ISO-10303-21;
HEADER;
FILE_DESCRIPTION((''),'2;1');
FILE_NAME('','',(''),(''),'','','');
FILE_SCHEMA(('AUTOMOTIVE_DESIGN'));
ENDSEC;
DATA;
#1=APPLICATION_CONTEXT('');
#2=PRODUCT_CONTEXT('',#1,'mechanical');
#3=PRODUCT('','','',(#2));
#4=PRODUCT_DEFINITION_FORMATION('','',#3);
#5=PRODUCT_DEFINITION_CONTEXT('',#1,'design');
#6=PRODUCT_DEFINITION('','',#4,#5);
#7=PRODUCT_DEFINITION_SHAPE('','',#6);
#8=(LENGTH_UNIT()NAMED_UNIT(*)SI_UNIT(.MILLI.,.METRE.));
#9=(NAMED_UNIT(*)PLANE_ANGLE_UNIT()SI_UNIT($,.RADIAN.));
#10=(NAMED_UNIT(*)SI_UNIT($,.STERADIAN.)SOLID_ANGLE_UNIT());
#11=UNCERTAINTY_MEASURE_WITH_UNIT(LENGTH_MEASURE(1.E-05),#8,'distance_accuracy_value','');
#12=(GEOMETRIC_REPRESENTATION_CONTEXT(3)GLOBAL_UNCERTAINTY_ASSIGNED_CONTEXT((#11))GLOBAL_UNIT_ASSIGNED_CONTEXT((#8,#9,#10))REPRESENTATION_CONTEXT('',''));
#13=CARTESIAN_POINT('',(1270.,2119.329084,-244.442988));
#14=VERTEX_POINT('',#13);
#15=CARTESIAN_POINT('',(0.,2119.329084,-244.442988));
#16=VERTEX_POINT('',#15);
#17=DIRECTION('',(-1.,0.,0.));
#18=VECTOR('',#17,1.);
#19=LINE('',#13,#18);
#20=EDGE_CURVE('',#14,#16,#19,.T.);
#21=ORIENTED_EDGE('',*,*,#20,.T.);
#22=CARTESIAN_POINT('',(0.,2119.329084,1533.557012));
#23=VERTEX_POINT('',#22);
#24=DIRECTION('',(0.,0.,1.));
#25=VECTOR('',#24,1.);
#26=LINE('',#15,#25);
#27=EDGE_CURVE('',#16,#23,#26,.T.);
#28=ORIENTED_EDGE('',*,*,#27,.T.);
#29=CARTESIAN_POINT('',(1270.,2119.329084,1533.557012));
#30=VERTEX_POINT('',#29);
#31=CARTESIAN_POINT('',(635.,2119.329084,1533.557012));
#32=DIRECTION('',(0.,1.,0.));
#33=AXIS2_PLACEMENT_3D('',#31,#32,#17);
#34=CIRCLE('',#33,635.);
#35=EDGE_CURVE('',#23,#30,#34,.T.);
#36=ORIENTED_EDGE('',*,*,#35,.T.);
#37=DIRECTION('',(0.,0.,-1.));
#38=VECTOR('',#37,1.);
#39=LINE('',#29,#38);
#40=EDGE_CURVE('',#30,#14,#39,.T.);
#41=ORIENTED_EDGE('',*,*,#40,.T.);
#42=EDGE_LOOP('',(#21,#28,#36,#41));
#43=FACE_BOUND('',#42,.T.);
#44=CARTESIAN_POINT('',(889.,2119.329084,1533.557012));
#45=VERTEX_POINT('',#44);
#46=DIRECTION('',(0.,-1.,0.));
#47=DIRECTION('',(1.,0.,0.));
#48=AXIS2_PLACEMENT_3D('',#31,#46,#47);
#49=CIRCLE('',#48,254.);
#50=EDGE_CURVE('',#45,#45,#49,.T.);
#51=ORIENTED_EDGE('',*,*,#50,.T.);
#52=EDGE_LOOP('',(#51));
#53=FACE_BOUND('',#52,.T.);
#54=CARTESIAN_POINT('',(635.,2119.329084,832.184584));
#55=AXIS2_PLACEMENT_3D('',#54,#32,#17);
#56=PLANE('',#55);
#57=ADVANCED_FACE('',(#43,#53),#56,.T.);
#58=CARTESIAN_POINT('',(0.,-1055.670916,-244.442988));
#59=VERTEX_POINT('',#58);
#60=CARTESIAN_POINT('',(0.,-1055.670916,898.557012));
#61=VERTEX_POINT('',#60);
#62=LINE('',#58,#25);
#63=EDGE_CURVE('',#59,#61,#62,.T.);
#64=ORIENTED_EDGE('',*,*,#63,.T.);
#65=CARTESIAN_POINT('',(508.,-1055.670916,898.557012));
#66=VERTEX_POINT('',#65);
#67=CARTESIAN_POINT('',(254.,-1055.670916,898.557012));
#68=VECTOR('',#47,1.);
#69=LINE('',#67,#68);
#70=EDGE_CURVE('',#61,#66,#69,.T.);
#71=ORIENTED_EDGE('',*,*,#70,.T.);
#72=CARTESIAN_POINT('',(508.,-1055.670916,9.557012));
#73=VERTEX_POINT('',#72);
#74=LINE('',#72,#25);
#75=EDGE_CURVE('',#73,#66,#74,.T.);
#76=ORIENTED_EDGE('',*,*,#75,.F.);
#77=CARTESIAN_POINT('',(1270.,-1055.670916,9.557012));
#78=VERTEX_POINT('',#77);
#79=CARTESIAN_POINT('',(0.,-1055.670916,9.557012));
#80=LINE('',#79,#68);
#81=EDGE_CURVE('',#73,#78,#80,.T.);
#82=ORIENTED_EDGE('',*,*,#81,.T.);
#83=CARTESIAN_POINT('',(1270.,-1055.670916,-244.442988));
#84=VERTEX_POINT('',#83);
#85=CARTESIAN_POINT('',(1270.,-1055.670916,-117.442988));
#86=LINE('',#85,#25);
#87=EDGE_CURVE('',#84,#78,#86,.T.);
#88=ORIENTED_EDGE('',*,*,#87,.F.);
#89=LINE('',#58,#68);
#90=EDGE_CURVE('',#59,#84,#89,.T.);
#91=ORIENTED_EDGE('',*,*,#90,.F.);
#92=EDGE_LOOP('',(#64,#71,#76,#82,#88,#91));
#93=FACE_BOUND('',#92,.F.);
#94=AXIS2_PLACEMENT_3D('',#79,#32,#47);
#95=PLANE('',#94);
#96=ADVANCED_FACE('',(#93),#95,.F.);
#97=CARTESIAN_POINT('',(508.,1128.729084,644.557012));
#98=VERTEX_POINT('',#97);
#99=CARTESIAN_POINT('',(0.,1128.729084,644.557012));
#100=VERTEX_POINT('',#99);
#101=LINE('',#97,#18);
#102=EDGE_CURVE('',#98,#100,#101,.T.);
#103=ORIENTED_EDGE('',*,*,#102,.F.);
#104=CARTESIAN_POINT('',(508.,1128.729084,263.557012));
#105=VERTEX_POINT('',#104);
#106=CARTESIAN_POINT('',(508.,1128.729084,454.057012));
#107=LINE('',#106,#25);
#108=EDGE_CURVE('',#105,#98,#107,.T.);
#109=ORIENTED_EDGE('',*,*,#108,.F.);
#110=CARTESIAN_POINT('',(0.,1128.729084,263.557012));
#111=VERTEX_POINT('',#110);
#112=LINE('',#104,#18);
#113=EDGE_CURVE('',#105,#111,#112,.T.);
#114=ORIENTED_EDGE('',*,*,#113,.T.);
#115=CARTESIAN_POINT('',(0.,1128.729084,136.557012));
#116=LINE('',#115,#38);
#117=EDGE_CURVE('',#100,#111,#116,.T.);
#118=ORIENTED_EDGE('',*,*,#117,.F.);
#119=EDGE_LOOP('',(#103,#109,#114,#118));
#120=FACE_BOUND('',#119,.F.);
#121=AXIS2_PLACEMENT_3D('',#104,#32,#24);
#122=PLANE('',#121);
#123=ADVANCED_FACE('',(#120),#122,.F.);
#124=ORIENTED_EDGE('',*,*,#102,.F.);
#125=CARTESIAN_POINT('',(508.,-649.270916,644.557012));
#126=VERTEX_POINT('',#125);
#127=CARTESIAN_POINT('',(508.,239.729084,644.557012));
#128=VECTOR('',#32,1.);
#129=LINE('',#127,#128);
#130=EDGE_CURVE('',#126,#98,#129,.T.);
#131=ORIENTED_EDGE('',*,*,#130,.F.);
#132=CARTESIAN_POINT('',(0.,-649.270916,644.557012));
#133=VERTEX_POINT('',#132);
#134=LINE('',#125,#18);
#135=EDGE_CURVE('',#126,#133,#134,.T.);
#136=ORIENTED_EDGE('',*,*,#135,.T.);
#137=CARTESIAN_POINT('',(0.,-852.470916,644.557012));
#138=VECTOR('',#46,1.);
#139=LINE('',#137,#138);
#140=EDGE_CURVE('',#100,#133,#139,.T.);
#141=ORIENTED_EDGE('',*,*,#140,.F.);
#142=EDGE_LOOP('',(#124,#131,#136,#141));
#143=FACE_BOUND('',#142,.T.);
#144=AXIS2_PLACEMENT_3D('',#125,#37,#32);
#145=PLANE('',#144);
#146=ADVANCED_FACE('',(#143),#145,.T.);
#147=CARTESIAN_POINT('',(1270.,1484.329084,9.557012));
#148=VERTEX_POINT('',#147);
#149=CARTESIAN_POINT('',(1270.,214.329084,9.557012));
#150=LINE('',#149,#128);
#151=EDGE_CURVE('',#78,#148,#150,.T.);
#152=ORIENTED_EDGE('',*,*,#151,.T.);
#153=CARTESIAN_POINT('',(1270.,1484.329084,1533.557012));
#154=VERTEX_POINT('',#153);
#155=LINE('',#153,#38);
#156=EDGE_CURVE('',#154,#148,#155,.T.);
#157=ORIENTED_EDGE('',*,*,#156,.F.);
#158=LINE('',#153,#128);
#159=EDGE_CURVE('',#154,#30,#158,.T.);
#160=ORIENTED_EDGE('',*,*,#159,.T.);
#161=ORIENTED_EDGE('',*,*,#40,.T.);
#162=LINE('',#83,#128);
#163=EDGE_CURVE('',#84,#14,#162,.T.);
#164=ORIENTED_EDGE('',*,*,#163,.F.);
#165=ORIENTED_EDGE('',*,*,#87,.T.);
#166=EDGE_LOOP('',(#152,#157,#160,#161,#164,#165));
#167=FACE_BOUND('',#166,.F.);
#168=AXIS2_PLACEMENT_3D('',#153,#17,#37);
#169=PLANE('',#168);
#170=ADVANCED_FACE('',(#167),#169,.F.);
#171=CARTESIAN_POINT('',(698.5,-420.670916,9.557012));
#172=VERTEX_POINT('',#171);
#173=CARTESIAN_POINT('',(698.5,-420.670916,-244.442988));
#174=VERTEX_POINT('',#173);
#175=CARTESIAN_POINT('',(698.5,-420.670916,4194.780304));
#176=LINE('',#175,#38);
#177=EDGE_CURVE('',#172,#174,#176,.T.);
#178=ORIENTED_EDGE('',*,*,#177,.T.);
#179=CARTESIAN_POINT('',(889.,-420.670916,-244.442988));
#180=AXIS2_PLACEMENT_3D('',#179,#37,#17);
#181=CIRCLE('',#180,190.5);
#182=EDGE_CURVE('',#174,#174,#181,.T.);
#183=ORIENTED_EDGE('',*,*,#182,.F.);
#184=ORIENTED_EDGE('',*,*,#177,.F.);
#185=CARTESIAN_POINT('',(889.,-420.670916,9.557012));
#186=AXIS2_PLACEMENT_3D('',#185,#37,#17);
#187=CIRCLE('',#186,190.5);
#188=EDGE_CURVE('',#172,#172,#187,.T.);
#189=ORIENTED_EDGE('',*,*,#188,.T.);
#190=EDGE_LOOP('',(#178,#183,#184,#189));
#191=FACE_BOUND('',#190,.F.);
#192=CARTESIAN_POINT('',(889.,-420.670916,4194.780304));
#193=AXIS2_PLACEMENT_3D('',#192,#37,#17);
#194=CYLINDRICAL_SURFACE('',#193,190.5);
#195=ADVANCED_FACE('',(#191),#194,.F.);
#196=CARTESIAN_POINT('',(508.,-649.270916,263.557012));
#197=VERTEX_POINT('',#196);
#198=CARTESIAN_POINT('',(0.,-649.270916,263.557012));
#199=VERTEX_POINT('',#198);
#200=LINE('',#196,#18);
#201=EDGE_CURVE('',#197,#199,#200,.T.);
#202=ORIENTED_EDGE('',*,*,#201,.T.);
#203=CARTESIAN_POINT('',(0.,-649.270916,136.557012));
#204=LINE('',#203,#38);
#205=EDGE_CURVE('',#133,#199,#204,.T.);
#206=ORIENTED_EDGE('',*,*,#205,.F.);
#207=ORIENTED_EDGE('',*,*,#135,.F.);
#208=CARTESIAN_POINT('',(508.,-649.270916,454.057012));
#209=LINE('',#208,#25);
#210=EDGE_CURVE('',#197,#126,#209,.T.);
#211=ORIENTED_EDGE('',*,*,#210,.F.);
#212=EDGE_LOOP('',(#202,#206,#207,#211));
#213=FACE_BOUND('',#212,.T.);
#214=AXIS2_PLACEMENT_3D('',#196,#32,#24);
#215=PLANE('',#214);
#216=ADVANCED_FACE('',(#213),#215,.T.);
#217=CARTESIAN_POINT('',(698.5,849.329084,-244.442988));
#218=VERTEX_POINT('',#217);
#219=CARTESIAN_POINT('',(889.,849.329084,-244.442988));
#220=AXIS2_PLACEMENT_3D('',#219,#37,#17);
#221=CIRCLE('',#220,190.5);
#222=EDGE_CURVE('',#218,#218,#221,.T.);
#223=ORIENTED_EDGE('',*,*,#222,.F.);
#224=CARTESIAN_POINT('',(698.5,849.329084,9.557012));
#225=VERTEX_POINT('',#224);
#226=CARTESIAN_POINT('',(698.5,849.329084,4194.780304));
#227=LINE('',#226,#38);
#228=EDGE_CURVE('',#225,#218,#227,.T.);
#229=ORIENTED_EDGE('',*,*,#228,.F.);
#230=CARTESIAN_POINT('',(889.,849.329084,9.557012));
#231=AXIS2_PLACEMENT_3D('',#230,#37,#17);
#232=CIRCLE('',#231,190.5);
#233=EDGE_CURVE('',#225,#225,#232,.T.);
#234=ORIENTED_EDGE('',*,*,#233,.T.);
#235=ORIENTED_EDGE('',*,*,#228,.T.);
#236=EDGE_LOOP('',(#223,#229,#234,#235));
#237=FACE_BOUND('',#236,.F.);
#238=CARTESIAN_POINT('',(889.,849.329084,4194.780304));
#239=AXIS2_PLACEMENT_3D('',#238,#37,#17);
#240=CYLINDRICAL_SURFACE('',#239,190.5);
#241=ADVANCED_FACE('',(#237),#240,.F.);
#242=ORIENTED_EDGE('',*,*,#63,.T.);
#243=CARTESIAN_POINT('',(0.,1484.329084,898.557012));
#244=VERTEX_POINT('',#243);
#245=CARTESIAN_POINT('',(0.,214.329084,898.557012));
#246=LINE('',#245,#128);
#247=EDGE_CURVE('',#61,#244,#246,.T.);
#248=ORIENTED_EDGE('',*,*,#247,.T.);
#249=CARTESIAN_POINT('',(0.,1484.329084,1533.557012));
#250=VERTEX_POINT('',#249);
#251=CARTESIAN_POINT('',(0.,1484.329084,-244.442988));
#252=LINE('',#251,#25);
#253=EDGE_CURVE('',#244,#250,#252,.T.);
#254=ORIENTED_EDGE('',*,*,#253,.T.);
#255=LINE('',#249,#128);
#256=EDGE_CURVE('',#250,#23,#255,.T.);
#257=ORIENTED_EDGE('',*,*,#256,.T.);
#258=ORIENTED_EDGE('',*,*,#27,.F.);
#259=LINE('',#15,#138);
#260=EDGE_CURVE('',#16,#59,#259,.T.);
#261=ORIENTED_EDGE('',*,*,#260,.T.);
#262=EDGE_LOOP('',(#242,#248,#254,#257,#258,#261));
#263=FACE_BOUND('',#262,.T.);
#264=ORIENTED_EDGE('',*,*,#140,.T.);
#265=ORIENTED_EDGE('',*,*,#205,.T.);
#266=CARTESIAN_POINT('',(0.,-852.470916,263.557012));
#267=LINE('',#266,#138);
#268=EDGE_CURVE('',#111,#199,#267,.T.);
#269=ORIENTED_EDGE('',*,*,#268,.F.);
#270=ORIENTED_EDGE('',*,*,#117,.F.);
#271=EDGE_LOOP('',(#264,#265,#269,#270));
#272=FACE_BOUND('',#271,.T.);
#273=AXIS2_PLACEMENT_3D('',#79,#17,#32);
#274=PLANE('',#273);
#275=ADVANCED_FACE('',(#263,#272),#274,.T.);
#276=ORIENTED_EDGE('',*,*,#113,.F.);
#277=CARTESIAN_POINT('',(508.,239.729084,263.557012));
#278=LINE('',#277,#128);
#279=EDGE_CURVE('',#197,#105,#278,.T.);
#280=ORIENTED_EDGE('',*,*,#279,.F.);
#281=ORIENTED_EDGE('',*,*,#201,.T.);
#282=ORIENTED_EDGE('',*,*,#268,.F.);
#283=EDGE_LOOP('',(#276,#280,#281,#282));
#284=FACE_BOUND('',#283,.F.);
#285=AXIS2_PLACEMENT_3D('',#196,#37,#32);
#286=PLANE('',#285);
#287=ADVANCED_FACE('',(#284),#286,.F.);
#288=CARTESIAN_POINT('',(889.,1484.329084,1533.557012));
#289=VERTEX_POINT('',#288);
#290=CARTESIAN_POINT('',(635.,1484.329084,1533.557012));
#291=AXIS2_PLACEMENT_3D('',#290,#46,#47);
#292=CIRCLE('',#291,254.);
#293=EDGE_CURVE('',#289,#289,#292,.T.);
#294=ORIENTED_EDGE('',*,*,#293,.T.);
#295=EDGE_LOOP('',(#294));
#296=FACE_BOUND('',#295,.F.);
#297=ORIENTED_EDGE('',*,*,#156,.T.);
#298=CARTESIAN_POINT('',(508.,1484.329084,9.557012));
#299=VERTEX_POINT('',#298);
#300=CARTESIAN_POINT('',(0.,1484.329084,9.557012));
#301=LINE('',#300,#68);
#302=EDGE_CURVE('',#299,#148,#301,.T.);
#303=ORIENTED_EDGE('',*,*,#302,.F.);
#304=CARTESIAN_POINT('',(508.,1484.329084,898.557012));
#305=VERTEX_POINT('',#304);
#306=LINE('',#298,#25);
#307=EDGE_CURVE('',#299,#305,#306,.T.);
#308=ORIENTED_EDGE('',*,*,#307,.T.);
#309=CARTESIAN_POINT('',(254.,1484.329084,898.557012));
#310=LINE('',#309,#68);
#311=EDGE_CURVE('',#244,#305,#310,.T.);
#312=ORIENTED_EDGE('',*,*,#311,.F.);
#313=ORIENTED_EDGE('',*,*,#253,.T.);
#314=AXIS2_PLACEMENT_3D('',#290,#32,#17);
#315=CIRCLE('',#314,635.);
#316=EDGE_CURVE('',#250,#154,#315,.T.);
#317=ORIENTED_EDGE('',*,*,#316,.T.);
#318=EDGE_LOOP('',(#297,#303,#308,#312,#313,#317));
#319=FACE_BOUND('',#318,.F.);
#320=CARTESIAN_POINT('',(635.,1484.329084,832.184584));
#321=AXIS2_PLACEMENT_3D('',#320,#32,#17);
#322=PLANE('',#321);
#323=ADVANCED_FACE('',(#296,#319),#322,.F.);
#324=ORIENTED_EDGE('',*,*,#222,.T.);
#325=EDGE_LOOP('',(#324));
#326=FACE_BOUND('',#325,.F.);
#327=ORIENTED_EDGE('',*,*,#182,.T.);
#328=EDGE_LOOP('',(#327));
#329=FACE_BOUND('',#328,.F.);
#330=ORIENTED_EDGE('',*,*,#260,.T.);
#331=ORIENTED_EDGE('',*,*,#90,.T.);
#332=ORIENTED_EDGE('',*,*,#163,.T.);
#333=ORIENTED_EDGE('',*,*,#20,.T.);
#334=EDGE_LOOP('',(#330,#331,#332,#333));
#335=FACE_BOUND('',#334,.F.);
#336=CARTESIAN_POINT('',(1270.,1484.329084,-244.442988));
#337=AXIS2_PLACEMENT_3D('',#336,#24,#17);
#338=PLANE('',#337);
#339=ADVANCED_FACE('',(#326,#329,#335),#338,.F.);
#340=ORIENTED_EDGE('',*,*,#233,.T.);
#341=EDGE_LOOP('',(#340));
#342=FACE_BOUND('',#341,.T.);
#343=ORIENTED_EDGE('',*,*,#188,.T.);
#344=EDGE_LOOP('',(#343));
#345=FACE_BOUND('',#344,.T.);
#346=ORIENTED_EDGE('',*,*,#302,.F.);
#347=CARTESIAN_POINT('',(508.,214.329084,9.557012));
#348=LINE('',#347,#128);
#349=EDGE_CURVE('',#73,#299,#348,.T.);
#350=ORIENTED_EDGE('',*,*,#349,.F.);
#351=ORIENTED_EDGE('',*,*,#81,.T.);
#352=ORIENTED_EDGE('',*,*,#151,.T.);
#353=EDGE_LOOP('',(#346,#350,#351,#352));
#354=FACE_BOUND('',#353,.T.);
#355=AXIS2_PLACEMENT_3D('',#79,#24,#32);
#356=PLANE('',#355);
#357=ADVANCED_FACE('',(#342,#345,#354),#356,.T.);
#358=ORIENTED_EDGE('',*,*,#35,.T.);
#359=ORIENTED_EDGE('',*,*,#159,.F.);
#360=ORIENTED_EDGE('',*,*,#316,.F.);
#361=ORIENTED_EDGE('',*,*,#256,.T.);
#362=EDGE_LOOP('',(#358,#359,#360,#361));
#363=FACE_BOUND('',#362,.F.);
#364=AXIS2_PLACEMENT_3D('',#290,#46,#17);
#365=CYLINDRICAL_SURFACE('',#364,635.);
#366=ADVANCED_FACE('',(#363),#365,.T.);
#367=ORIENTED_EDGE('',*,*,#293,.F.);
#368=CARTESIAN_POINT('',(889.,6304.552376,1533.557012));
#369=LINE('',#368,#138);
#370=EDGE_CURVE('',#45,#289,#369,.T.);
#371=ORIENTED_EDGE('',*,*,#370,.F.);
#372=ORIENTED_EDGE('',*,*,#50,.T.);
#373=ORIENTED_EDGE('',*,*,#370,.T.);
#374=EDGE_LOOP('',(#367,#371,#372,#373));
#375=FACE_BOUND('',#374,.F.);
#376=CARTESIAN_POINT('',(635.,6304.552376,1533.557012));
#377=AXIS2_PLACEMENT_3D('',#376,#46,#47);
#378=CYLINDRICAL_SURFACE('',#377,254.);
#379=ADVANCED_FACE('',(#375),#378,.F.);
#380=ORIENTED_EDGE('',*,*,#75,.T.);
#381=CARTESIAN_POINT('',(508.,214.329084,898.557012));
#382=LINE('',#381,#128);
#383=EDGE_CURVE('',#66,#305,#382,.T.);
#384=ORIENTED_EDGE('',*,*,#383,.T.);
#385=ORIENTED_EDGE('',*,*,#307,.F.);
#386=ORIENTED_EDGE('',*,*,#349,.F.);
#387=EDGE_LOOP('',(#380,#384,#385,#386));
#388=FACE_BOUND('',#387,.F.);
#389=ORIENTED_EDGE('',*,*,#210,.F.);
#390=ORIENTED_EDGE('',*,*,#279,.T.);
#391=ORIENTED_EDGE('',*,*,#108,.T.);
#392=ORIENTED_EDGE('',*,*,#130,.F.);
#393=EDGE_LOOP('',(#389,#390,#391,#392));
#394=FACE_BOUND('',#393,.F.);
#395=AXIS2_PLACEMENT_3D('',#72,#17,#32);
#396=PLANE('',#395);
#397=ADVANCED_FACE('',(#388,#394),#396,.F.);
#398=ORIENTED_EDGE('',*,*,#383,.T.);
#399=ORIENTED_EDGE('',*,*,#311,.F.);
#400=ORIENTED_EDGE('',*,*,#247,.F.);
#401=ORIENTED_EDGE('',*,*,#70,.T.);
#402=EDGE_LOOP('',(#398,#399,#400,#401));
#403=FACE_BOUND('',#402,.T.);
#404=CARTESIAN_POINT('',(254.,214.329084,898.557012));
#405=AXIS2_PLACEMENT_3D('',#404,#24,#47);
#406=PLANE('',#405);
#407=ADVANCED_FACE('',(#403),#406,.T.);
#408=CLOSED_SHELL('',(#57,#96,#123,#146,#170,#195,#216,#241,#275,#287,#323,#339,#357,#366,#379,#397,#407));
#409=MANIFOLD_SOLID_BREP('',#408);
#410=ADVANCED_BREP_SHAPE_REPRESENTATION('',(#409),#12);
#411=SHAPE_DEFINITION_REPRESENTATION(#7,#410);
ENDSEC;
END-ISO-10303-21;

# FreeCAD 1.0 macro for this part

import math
import FreeCAD as App
import Part
import Sketcher
Q = App.Units.Quantity


def add_polygon(sketch, points):
    """Adds a closed chain of lines whose ends are joined by coincident constraints."""
    first, n = sketch.GeometryCount, len(points)
    for a, b in zip(points, points[1:] + points[:1]):
        sketch.addGeometry(Part.LineSegment(App.Vector(*a, 0), App.Vector(*b, 0)), False)
    for i in range(n):
        sketch.addConstraint(Sketcher.Constraint("Coincident", first + i, 2, first + (i + 1) % n, 1))

doc = App.newDocument("Part")
body = doc.addObject("PartDesign::Body", "Body")

# Sketch on YZ plane
sketch1 = doc.addObject("Sketcher::SketchObject", "Sketch")
body.addObject(sketch1)
sketch1.AttachmentSupport = (doc.YZ_Plane, [""])
sketch1.MapMode = "FlatFace"
add_polygon(sketch1, [(-1056, 10), (-1056, -244), (1484, -244), (1484, 10)])  # lines 0-3
sketch1.addConstraint([
    Sketcher.Constraint("Vertical", 0),
    Sketcher.Constraint("Horizontal", 1),
    Sketcher.Constraint("Vertical", 2),
    Sketcher.Constraint("Horizontal", 3),
    Sketcher.Constraint("DistanceX", 1, 1, 1, 2, Q("100 in")),
    Sketcher.Constraint("DistanceY", 0, 2, 0, 1, Q("10 in")),
    Sketcher.Constraint("DistanceY", 0, 2, -1, 1, Q("244.442988 mm")),
    Sketcher.Constraint("DistanceX", 0, 2, -1, 1, Q("1055.670916 mm")),
])
pad1 = doc.addObject("PartDesign::Pad", "Pad")
body.addObject(pad1)
pad1.Profile = sketch1
pad1.Length = Q("50 in")

# Sketch on XZ plane
sketch2 = doc.addObject("Sketcher::SketchObject", "Sketch001")
body.addObject(sketch2)
sketch2.AttachmentSupport = (doc.XZ_Plane, [""])
sketch2.MapMode = "FlatFace"
sketch2.AttachmentOffset = App.Placement(App.Vector(0, 0, -1484.329084), App.Rotation())
sketch2.addGeometry([
    Part.ArcOfCircle(Part.Circle(App.Vector(635, 1534, 0), App.Vector(0, 0, 1), 635), math.radians(0), math.radians(180)),
    Part.LineSegment(App.Vector(1270, 1534, 0), App.Vector(1270, -244, 0)),
    Part.LineSegment(App.Vector(1270, -244, 0), App.Vector(0, -244, 0)),
    Part.LineSegment(App.Vector(0, -244, 0), App.Vector(0, 1534, 0)),
], False)
sketch2.addConstraint([
    Sketcher.Constraint("Tangent", 0, 1, 1, 1),
    Sketcher.Constraint("Coincident", 1, 2, 2, 1),
    Sketcher.Constraint("Coincident", 2, 2, 3, 1),
    Sketcher.Constraint("Tangent", 3, 2, 0, 2),
    Sketcher.Constraint("Vertical", 1),
    Sketcher.Constraint("Horizontal", 2),
    Sketcher.Constraint("Vertical", 3),
    Sketcher.Constraint("PointOnObject", 2, 2, -2),
    Sketcher.Constraint("Radius", 0, Q("25 in")),
    Sketcher.Constraint("DistanceY", 1, 2, 1, 1, Q("70 in")),
    Sketcher.Constraint("DistanceY", -1, 1, 0, 3, Q("1533.557012 mm")),
])
pad2 = doc.addObject("PartDesign::Pad", "Pad001")
body.addObject(pad2)
pad2.Profile = sketch2
pad2.Length = Q("25 in")
pad2.Reversed = True

# Sketch on XZ plane
sketch3 = doc.addObject("Sketcher::SketchObject", "Sketch002")
body.addObject(sketch3)
sketch3.AttachmentSupport = (doc.XZ_Plane, [""])
sketch3.MapMode = "FlatFace"
sketch3.AttachmentOffset = App.Placement(App.Vector(0, 0, -2119.329084), App.Rotation())
sketch3.addGeometry(Part.Circle(App.Vector(635, 1534, 0), App.Vector(0, 0, 1), 254), False)
sketch3.addConstraint([
    Sketcher.Constraint("Diameter", 0, Q("20 in")),
    Sketcher.Constraint("DistanceX", -1, 1, 0, 3, Q("25 in")),
    Sketcher.Constraint("DistanceY", -1, 1, 0, 3, Q("1533.557012 mm")),
])
doc.recompute()
hole = doc.addObject("PartDesign::Hole", "Hole")
body.addObject(hole)
hole.Profile = sketch3
hole.ThreadType = "None"
hole.Diameter = Q("20 in")
hole.DepthType = "ThroughAll"
hole.Reversed = True

# Sketch on XY plane
sketch4 = doc.addObject("Sketcher::SketchObject", "Sketch003")
body.addObject(sketch4)
sketch4.AttachmentSupport = (doc.XY_Plane, [""])
sketch4.MapMode = "FlatFace"
sketch4.AttachmentOffset = App.Placement(App.Vector(0, 0, 9.557012), App.Rotation())
add_polygon(sketch4, [(0, 1484), (0, -1056), (508, -1056), (508, 1484)])  # lines 0-3
sketch4.addConstraint([
    Sketcher.Constraint("Vertical", 0),
    Sketcher.Constraint("Horizontal", 1),
    Sketcher.Constraint("Vertical", 2),
    Sketcher.Constraint("Horizontal", 3),
    Sketcher.Constraint("PointOnObject", 0, 2, -2),
    Sketcher.Constraint("DistanceX", 1, 1, 1, 2, Q("20 in")),
    Sketcher.Constraint("DistanceY", 0, 2, 0, 1, Q("100 in")),
    Sketcher.Constraint("DistanceY", 0, 2, -1, 1, Q("1055.670916 mm")),
])
pad3 = doc.addObject("PartDesign::Pad", "Pad002")
body.addObject(pad3)
pad3.Profile = sketch4
pad3.Length = Q("35 in")

# Sketch on YZ plane
sketch5 = doc.addObject("Sketcher::SketchObject", "Sketch004")
body.addObject(sketch5)
sketch5.AttachmentSupport = (doc.YZ_Plane, [""])
sketch5.MapMode = "FlatFace"
sketch5.AttachmentOffset = App.Placement(App.Vector(0, 0, 20 * 25.4), App.Rotation())
add_polygon(sketch5, [(-649, 645), (-649, 264), (1129, 264), (1129, 645)])  # lines 0-3
sketch5.addConstraint([
    Sketcher.Constraint("Vertical", 0),
    Sketcher.Constraint("Horizontal", 1),
    Sketcher.Constraint("Vertical", 2),
    Sketcher.Constraint("Horizontal", 3),
    Sketcher.Constraint("DistanceX", 1, 1, 1, 2, Q("70 in")),
    Sketcher.Constraint("DistanceY", 0, 2, 0, 1, Q("15 in")),
    Sketcher.Constraint("DistanceY", -1, 1, 0, 2, Q("263.557012 mm")),
    Sketcher.Constraint("DistanceX", 0, 2, -1, 1, Q("649.270916 mm")),
])
pocket1 = doc.addObject("PartDesign::Pocket", "Pocket")
body.addObject(pocket1)
pocket1.Profile = sketch5
pocket1.Length = 1565.87305

# Sketch on XY plane
sketch6 = doc.addObject("Sketcher::SketchObject", "Sketch005")
body.addObject(sketch6)
sketch6.AttachmentSupport = (doc.XY_Plane, [""])
sketch6.MapMode = "FlatFace"
sketch6.AttachmentOffset = App.Placement(App.Vector(0, 0, 9.557012), App.Rotation())
sketch6.addGeometry([
    Part.Circle(App.Vector(889, -421, 0), App.Vector(0, 0, 1), 190),
    Part.Circle(App.Vector(889, 849, 0), App.Vector(0, 0, 1), 190),
], False)
sketch6.addConstraint([
    Sketcher.Constraint("Equal", 0, 1),
    Sketcher.Constraint("Vertical", 0, 3, 1, 3),
    Sketcher.Constraint("Diameter", 0, Q("15 in")),
    Sketcher.Constraint("DistanceX", -1, 1, 0, 3, Q("35 in")),
    Sketcher.Constraint("DistanceY", 0, 3, 1, 3, Q("50 in")),
    Sketcher.Constraint("DistanceY", 0, 3, -1, 1, Q("420.670916 mm")),
])
doc.recompute()
hole2 = doc.addObject("PartDesign::Hole", "Hole001")
body.addObject(hole2)
hole2.Profile = sketch6
hole2.ThreadType = "None"
hole2.Diameter = Q("15 in")
hole2.DepthType = "ThroughAll"

doc.recompute()
